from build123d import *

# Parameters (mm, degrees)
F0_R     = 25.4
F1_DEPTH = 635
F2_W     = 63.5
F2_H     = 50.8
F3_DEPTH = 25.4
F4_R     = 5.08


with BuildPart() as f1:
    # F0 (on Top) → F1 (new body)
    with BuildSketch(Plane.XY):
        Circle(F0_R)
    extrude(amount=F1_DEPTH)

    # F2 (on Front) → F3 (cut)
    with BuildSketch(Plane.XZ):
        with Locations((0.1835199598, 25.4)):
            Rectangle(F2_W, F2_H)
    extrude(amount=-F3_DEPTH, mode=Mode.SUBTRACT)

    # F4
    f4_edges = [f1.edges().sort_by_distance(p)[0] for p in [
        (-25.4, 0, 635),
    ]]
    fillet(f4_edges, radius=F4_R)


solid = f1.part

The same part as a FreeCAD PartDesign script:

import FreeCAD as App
import Part
import Sketcher
from FreeCAD import Vector
Q = App.Units.Quantity


def edges_at(feature, points):
    """Names of the edges that pass closest to the given points."""
    edges = feature.Shape.Edges
    near = lambda p: min(range(len(edges)), key=lambda i: edges[i].distToShape(Part.Vertex(*p))[0])
    return sorted({f"Edge{near(p) + 1}" for p in points})

doc = App.newDocument("Part")
params = doc.addObject("Spreadsheet::Sheet", "Params")
for row, (alias, value) in enumerate([
    ("sketch1_diameter", "2 in"),
    ("pad1_length", "25 in"),
    ("sketch2_height", "2 in"),
    ("sketch2_width", "2.5 in"),
    ("pocket1_length", "1 in"),
    ("fillet_radius", "0.2 in"),
], start=1):
    params.set(f"A{row}", alias)
    params.set(f"B{row}", "=" + value)
    params.setAlias(f"B{row}", alias)

body = doc.addObject("PartDesign::Body", "Body")

# Sketch on XY plane
sketch1 = body.newObject("Sketcher::SketchObject", "Sketch")
sketch1.AttachmentSupport = (doc.getObject("XY_Plane"), [""])
sketch1.MapMode = "FlatFace"
sketch1.addGeometry(Part.Circle(Vector(0, 0, 0), Vector(0, 0, 1), 25), False)
sketch1.addConstraint([
    Sketcher.Constraint("Coincident", 0, 3, -1, 1),
    Sketcher.Constraint("Diameter", 0, Q("2 in")),
])
sketch1.setExpression("Constraints[1]", "Params.sketch1_diameter")
pad1 = body.newObject("PartDesign::Pad", "Pad")
pad1.Profile = sketch1
pad1.setExpression("Length", "Params.pad1_length")

# Sketch on XZ plane
sketch2 = body.newObject("Sketcher::SketchObject", "Sketch001")
sketch2.AttachmentSupport = (doc.getObject("XZ_Plane"), [""])
sketch2.MapMode = "FlatFace"
sketch2.addGeometry([
    Part.LineSegment(Vector(-32, 51, 0), Vector(-32, 0, 0)),
    Part.LineSegment(Vector(-32, 0, 0), Vector(32, 0, 0)),
    Part.LineSegment(Vector(32, 0, 0), Vector(32, 51, 0)),
    Part.LineSegment(Vector(32, 51, 0), Vector(-32, 51, 0)),
], False)
sketch2.addConstraint([
    Sketcher.Constraint("Coincident", 0, 2, 1, 1),
    Sketcher.Constraint("Coincident", 1, 2, 2, 1),
    Sketcher.Constraint("Coincident", 2, 2, 3, 1),
    Sketcher.Constraint("Coincident", 3, 2, 0, 1),
    Sketcher.Constraint("Vertical", 0),
    Sketcher.Constraint("Horizontal", 1),
    Sketcher.Constraint("Vertical", 2),
    Sketcher.Constraint("Horizontal", 3),
    Sketcher.Constraint("PointOnObject", 0, 2, -1),
    Sketcher.Constraint("DistanceY", 0, 2, 0, 1, Q("2 in")),
    Sketcher.Constraint("DistanceX", 1, 1, 1, 2, Q("2.5 in")),
    Sketcher.Constraint("DistanceX", 0, 2, -1, 1, 31.56648),
])
sketch2.setExpression("Constraints[9]", "Params.sketch2_height")
sketch2.setExpression("Constraints[10]", "Params.sketch2_width")
pocket1 = body.newObject("PartDesign::Pocket", "Pocket")
pocket1.Profile = sketch2
pocket1.setExpression("Length", "Params.pocket1_length")
doc.recompute()

fillet = body.newObject("PartDesign::Fillet", "Fillet")
fillet.Base = (pocket1, edges_at(pocket1, [(-25.4, 0, 635)]))
fillet.setExpression("Radius", "Params.fillet_radius")

doc.recompute()
